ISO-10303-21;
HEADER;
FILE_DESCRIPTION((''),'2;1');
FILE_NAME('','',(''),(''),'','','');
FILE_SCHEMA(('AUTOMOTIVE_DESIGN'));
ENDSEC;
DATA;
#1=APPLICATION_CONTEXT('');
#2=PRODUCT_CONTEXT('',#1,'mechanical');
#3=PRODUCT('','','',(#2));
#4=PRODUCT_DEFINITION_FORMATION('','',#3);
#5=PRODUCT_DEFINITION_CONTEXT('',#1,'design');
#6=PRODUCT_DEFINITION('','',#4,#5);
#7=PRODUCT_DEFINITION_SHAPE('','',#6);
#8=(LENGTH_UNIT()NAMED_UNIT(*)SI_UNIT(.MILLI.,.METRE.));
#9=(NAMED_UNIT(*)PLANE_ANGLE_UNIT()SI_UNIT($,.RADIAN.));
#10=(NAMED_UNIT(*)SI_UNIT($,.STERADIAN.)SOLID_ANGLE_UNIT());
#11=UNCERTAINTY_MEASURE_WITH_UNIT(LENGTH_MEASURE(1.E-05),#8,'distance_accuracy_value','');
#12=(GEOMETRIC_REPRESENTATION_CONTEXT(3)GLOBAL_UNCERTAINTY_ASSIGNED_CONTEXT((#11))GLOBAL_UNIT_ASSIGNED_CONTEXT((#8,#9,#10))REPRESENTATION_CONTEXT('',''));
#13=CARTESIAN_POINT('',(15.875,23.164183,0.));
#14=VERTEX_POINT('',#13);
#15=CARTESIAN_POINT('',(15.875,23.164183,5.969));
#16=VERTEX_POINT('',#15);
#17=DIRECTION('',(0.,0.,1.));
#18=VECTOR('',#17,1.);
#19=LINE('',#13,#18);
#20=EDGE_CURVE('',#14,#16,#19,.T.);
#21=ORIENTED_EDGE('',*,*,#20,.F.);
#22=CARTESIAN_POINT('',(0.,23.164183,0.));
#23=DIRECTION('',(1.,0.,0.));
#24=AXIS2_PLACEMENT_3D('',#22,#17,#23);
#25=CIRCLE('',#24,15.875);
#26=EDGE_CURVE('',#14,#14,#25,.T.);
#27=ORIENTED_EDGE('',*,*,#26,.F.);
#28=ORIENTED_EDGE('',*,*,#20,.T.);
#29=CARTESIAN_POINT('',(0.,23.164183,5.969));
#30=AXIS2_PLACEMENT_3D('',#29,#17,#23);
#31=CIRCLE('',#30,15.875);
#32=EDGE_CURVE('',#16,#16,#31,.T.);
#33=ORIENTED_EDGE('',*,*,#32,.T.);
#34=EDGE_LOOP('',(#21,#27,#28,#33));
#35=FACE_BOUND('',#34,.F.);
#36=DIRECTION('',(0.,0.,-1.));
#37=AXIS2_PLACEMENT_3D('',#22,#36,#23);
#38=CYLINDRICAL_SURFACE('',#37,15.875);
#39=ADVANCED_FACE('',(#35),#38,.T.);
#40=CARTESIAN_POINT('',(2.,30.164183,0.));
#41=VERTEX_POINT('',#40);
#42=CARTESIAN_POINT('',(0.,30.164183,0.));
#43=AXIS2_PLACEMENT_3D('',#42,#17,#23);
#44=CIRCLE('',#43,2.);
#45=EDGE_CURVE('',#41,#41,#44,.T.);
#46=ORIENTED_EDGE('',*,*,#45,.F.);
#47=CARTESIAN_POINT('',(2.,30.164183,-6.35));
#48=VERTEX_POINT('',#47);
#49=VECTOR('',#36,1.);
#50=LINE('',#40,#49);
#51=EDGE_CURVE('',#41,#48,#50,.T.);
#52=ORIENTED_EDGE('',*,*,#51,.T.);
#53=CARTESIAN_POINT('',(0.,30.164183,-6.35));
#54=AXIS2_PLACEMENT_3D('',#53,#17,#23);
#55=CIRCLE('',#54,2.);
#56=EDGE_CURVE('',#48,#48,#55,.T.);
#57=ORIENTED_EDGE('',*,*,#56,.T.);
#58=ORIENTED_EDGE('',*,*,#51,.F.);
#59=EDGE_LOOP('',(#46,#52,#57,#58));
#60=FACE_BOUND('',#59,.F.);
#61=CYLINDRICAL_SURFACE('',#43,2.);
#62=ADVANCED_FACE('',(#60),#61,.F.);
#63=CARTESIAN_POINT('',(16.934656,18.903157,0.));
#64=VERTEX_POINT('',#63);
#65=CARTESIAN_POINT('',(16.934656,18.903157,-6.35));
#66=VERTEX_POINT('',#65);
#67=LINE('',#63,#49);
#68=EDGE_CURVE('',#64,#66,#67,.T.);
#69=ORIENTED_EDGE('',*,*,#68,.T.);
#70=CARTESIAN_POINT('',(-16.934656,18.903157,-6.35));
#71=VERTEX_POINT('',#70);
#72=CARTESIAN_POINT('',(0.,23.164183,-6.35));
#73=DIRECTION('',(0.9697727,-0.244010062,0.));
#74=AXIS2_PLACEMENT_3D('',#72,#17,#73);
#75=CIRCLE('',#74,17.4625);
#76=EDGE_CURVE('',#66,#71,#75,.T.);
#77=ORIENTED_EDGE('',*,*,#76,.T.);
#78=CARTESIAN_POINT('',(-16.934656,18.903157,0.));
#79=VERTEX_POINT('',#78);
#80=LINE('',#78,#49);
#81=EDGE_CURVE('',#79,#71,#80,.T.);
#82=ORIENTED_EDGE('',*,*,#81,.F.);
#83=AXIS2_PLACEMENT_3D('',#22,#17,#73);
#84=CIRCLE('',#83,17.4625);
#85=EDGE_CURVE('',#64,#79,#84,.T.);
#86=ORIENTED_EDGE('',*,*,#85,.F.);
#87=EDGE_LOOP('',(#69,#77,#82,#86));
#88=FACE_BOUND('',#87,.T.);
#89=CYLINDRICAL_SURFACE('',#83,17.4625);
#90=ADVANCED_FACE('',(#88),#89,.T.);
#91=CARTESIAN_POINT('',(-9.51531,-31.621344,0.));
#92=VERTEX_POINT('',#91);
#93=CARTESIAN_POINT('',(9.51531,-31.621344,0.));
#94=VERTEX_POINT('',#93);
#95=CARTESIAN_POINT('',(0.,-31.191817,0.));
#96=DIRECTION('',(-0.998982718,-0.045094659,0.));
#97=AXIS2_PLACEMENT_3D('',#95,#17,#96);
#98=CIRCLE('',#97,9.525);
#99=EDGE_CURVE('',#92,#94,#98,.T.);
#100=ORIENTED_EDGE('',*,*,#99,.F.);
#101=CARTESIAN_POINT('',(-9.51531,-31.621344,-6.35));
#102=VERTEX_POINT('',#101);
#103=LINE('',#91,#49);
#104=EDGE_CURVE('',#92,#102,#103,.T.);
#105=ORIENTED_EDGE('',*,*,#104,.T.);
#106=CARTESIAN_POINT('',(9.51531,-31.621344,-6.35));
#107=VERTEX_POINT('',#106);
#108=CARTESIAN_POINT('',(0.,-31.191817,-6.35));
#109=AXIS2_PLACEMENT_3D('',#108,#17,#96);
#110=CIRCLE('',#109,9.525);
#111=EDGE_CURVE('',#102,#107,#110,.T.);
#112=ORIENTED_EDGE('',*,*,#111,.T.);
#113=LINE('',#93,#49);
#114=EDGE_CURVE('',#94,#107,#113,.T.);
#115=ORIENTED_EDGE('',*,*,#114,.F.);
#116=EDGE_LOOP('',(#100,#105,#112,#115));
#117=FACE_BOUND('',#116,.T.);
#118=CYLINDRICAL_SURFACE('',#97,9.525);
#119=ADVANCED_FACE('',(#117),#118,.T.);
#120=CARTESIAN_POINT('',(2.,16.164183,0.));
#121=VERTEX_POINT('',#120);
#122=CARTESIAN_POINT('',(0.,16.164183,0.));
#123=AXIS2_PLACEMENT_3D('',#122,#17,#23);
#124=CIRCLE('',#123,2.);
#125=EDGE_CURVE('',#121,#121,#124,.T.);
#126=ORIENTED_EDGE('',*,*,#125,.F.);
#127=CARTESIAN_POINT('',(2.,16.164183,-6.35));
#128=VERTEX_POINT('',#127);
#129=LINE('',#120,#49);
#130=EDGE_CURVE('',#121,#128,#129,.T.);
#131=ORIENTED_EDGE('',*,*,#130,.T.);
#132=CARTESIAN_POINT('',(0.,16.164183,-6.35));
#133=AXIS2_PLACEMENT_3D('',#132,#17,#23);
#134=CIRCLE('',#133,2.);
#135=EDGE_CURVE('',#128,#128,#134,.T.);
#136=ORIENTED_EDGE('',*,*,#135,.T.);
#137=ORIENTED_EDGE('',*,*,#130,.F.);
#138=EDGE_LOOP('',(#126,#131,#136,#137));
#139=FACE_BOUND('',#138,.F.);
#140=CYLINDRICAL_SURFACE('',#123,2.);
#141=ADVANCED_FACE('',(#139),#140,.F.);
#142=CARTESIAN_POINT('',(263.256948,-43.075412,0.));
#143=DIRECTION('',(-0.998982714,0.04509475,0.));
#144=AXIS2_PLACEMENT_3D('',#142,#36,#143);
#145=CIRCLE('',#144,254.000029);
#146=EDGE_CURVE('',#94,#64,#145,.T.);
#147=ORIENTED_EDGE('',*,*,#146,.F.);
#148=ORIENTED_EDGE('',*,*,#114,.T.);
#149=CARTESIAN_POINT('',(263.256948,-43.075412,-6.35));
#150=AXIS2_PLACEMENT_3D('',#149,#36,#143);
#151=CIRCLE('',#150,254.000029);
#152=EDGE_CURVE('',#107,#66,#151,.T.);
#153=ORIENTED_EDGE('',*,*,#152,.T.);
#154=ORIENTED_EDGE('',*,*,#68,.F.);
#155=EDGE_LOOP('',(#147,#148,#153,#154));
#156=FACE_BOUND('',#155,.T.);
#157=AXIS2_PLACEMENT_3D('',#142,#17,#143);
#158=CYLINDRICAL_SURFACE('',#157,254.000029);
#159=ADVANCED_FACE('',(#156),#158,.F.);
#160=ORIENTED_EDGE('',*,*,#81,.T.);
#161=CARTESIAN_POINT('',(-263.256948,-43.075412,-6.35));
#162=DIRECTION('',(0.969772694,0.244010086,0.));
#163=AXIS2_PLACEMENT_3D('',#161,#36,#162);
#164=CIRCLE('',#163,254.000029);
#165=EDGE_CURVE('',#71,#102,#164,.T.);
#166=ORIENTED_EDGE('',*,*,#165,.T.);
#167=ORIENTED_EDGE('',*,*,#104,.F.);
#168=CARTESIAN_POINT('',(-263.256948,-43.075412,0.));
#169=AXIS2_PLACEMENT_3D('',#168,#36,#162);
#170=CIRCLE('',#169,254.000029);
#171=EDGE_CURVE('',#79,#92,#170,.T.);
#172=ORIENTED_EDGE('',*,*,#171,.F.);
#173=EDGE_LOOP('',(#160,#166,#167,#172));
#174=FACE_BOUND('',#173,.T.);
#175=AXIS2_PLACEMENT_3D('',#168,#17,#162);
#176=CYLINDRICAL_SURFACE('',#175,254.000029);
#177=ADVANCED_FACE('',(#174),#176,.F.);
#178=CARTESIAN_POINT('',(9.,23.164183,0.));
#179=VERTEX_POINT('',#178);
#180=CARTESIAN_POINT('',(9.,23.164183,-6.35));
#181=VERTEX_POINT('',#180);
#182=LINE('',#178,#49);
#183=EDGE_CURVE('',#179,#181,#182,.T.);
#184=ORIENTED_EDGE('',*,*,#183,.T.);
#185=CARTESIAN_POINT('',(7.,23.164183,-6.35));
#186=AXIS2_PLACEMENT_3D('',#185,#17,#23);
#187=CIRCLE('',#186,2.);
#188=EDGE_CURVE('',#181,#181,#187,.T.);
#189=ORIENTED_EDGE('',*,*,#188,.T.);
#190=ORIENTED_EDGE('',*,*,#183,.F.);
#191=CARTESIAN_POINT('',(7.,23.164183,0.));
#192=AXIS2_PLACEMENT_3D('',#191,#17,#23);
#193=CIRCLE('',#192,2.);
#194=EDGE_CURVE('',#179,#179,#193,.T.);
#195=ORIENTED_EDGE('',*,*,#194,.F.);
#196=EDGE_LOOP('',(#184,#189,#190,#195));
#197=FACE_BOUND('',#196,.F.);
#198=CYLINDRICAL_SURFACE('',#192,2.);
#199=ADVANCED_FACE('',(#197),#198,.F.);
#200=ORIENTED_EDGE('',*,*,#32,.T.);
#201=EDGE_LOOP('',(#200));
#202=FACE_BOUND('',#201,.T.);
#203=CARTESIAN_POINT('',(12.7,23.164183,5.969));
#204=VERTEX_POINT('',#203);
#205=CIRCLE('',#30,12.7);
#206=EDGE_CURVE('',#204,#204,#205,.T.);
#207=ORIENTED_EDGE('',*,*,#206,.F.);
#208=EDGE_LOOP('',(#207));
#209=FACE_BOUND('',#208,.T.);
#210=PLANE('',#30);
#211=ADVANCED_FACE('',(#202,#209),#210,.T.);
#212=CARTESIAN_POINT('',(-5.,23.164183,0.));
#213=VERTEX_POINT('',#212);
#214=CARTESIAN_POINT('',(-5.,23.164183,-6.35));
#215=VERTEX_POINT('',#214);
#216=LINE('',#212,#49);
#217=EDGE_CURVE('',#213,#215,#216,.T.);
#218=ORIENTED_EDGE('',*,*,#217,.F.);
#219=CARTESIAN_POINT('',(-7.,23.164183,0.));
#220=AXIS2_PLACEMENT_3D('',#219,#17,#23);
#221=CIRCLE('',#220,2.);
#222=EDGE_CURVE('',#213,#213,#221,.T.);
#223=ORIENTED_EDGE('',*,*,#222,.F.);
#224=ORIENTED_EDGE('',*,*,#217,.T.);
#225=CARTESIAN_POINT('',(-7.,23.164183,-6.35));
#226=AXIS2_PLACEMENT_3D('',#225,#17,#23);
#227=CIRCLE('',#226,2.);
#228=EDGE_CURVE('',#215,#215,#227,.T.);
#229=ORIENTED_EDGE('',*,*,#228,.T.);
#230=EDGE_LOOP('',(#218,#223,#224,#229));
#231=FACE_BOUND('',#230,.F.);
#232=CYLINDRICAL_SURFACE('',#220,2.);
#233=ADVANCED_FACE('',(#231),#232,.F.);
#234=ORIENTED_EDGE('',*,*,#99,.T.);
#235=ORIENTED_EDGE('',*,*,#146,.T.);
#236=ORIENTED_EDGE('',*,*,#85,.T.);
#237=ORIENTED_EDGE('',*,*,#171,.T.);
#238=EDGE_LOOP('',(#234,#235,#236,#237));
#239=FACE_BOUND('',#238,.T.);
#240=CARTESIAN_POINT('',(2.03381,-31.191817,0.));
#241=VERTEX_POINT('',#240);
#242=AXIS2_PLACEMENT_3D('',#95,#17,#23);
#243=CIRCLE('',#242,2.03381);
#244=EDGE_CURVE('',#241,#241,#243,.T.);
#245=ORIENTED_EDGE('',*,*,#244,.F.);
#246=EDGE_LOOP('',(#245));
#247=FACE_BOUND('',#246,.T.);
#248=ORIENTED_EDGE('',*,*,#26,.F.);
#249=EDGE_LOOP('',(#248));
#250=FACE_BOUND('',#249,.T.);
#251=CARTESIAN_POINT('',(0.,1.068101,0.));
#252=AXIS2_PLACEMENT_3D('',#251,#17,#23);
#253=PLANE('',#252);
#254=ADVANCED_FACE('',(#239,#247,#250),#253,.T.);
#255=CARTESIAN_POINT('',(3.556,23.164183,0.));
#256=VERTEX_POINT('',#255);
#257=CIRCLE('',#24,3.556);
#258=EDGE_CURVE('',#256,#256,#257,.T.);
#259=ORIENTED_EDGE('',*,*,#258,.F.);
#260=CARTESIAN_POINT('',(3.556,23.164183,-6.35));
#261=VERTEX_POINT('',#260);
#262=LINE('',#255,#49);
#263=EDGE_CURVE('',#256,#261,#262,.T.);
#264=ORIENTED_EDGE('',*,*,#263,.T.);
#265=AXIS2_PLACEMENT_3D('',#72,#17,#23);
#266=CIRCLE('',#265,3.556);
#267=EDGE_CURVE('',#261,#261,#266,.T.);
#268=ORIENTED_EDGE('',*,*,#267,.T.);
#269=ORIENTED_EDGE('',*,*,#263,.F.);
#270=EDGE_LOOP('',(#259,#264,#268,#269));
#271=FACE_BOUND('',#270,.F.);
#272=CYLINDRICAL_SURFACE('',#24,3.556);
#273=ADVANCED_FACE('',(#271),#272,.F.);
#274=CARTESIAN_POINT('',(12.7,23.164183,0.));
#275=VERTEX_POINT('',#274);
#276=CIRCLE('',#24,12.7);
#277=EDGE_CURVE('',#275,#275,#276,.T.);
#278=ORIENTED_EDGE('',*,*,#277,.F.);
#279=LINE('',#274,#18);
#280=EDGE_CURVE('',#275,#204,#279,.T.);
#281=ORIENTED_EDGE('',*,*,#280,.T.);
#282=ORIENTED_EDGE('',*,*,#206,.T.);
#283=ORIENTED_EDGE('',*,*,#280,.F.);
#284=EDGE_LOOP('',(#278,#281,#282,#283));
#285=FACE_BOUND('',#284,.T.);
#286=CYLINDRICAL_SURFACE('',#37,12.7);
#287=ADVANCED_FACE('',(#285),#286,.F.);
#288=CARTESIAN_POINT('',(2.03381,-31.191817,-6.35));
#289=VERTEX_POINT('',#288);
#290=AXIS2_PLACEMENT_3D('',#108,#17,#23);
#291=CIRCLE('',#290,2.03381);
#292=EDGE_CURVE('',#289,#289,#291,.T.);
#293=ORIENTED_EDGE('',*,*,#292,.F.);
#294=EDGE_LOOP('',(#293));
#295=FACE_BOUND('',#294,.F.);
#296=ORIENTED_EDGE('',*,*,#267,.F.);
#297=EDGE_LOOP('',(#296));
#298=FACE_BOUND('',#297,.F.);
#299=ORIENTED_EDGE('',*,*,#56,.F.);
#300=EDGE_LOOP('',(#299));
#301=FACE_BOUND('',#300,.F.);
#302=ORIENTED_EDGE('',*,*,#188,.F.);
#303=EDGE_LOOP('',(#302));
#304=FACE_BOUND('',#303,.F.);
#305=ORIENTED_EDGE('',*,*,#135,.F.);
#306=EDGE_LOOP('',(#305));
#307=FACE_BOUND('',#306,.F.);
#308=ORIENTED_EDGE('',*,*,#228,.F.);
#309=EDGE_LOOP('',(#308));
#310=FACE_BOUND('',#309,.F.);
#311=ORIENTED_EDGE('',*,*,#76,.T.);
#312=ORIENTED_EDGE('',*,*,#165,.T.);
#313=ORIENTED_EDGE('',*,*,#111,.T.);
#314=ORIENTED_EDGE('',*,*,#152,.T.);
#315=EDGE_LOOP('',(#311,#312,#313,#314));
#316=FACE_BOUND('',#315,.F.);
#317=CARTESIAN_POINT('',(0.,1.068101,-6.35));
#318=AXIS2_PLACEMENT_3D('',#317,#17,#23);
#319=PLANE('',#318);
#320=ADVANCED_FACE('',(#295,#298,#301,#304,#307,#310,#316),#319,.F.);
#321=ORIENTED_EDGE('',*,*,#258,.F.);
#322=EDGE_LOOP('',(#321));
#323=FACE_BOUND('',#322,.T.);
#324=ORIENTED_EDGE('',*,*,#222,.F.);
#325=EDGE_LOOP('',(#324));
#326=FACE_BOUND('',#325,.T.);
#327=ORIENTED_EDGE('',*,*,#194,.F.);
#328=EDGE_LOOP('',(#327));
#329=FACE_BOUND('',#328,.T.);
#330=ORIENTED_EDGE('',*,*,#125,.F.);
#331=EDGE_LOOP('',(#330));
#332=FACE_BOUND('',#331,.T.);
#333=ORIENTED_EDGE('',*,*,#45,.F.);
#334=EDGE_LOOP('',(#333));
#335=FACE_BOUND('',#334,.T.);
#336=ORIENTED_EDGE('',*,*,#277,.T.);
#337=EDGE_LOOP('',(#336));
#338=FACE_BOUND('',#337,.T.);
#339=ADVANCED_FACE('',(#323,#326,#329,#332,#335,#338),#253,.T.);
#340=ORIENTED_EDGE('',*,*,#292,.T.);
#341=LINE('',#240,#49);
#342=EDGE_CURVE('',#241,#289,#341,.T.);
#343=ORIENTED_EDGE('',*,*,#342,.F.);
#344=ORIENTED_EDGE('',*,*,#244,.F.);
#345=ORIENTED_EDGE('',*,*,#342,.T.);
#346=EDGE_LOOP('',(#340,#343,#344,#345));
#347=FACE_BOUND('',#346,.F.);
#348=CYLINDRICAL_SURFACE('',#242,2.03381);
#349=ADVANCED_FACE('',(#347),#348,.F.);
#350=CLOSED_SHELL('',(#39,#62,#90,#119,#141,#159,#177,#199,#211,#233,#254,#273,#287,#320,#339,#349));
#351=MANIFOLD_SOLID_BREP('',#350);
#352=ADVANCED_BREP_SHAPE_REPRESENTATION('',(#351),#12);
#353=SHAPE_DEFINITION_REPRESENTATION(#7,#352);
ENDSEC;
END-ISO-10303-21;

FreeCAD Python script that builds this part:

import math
import FreeCAD as App
import Part
import Sketcher

V = App.Vector
Q = App.Units.Quantity

doc = App.newDocument("Part")
body = doc.addObject("PartDesign::Body", "Body")

sketch1 = doc.addObject("Sketcher::SketchObject", "Sketch")
body.addObject(sketch1)
sketch1.AttachmentSupport = (doc.XY_Plane, [""])
sketch1.MapMode = "FlatFace"
sketch1.addGeometry(Part.ArcOfCircle(Part.Circle(V(263.3, -43.1, 0), V(0, 0, 1), 254), math.radians(165.88), math.radians(177.42)), False)
sketch1.addGeometry(Part.ArcOfCircle(Part.Circle(V(0, 23.2, 0), V(0, 0, 1), 17.5), math.radians(-14), math.radians(194)), False)
sketch1.addGeometry(Part.ArcOfCircle(Part.Circle(V(-263.3, -43.1, 0), V(0, 0, 1), 254), math.radians(2.58), math.radians(14.12)), False)
sketch1.addGeometry(Part.ArcOfCircle(Part.Circle(V(0, -31.2, 0), V(0, 0, 1), 9.5), math.radians(-177), math.radians(-3)), False)
sketch1.addGeometry(Part.Circle(V(0, -31.2, 0), V(0, 0, 1), 2), False)
sketch1.addGeometry(Part.Circle(V(-7, 23.2, 0), V(0, 0, 1), 2), False)
sketch1.addGeometry(Part.Circle(V(0, 16.2, 0), V(0, 0, 1), 2), False)
sketch1.addGeometry(Part.Circle(V(0, 23.2, 0), V(0, 0, 1), 3.6), False)
sketch1.addGeometry(Part.Circle(V(0, 30.2, 0), V(0, 0, 1), 2), False)
sketch1.addGeometry(Part.Circle(V(7, 23.2, 0), V(0, 0, 1), 2), False)
sketch1.addConstraint(Sketcher.Constraint("Tangent", 0, 1, 1, 1))
sketch1.addConstraint(Sketcher.Constraint("Tangent", 1, 2, 2, 2))
sketch1.addConstraint(Sketcher.Constraint("Tangent", 2, 1, 3, 1))
sketch1.addConstraint(Sketcher.Constraint("Tangent", 3, 2, 0, 2))
sketch1.addConstraint(Sketcher.Constraint("Coincident", 4, 3, 3, 3))
sketch1.addConstraint(Sketcher.Constraint("Coincident", 7, 3, 1, 3))
sketch1.addConstraint(Sketcher.Constraint("Equal", 0, 2))
sketch1.addConstraint(Sketcher.Constraint("Equal", 5, 6))
sketch1.addConstraint(Sketcher.Constraint("Equal", 6, 8))
sketch1.addConstraint(Sketcher.Constraint("Equal", 8, 9))
sketch1.addConstraint(Sketcher.Constraint("Symmetric", 0, 3, 2, 3, -2))
sketch1.addConstraint(Sketcher.Constraint("Symmetric", 5, 3, 9, 3, -2))
sketch1.addConstraint(Sketcher.Constraint("PointOnObject", 6, 3, -2))
sketch1.addConstraint(Sketcher.Constraint("PointOnObject", 8, 3, -2))
sketch1.addConstraint(Sketcher.Constraint("Horizontal", 1, 3, 5, 3))
sketch1.addConstraint(Sketcher.Constraint("Diameter", 7, Q("0.28 in")))
sketch1.addConstraint(Sketcher.Constraint("Radius", 1, Q("0.6875 in")))
sketch1.addConstraint(Sketcher.Constraint("Radius", 3, Q("0.375 in")))
sketch1.addConstraint(Sketcher.Constraint("Diameter", 5, Q("4 mm")))
sketch1.addConstraint(Sketcher.Constraint("DistanceY", 3, 3, 1, 3, Q("2.14 in")))
sketch1.addConstraint(Sketcher.Constraint("Diameter", 4, Q("4.06762 mm")))
sketch1.addConstraint(Sketcher.Constraint("Radius", 0, Q("254.000029 mm")))
sketch1.addConstraint(Sketcher.Constraint("DistanceX", 5, 3, -1, 1, Q("7 mm")))
sketch1.addConstraint(Sketcher.Constraint("DistanceY", 6, 3, 1, 3, Q("7 mm")))
sketch1.addConstraint(Sketcher.Constraint("DistanceY", 7, 3, 8, 3, Q("7 mm")))
sketch1.addConstraint(Sketcher.Constraint("DistanceY", 0, 3, -1, 1, Q("43.075412 mm")))
pad1 = doc.addObject("PartDesign::Pad", "Pad")
body.addObject(pad1)
pad1.Profile = sketch1
pad1.Length = Q("0.25 in")
pad1.Reversed = True

sketch2 = doc.addObject("Sketcher::SketchObject", "Sketch001")
body.addObject(sketch2)
sketch2.AttachmentSupport = (doc.XY_Plane, [""])
sketch2.MapMode = "FlatFace"
sketch2.addGeometry(Part.Circle(V(0, 23, 0), V(0, 0, 1), 16), False)
sketch2.addGeometry(Part.Circle(V(0, 23, 0), V(0, 0, 1), 13), False)
sketch2.addConstraint(Sketcher.Constraint("Coincident", 1, 3, 0, 3))
sketch2.addConstraint(Sketcher.Constraint("PointOnObject", 0, 3, -2))
sketch2.addConstraint(Sketcher.Constraint("Diameter", 1, Q("1 in")))
sketch2.addConstraint(Sketcher.Constraint("Diameter", 0, Q("1.25 in")))
sketch2.addConstraint(Sketcher.Constraint("DistanceY", -1, 1, 0, 3, Q("23.164183 mm")))
pad2 = doc.addObject("PartDesign::Pad", "Pad001")
body.addObject(pad2)
pad2.Profile = sketch2
pad2.Length = Q("0.235 in")

doc.recompute()
